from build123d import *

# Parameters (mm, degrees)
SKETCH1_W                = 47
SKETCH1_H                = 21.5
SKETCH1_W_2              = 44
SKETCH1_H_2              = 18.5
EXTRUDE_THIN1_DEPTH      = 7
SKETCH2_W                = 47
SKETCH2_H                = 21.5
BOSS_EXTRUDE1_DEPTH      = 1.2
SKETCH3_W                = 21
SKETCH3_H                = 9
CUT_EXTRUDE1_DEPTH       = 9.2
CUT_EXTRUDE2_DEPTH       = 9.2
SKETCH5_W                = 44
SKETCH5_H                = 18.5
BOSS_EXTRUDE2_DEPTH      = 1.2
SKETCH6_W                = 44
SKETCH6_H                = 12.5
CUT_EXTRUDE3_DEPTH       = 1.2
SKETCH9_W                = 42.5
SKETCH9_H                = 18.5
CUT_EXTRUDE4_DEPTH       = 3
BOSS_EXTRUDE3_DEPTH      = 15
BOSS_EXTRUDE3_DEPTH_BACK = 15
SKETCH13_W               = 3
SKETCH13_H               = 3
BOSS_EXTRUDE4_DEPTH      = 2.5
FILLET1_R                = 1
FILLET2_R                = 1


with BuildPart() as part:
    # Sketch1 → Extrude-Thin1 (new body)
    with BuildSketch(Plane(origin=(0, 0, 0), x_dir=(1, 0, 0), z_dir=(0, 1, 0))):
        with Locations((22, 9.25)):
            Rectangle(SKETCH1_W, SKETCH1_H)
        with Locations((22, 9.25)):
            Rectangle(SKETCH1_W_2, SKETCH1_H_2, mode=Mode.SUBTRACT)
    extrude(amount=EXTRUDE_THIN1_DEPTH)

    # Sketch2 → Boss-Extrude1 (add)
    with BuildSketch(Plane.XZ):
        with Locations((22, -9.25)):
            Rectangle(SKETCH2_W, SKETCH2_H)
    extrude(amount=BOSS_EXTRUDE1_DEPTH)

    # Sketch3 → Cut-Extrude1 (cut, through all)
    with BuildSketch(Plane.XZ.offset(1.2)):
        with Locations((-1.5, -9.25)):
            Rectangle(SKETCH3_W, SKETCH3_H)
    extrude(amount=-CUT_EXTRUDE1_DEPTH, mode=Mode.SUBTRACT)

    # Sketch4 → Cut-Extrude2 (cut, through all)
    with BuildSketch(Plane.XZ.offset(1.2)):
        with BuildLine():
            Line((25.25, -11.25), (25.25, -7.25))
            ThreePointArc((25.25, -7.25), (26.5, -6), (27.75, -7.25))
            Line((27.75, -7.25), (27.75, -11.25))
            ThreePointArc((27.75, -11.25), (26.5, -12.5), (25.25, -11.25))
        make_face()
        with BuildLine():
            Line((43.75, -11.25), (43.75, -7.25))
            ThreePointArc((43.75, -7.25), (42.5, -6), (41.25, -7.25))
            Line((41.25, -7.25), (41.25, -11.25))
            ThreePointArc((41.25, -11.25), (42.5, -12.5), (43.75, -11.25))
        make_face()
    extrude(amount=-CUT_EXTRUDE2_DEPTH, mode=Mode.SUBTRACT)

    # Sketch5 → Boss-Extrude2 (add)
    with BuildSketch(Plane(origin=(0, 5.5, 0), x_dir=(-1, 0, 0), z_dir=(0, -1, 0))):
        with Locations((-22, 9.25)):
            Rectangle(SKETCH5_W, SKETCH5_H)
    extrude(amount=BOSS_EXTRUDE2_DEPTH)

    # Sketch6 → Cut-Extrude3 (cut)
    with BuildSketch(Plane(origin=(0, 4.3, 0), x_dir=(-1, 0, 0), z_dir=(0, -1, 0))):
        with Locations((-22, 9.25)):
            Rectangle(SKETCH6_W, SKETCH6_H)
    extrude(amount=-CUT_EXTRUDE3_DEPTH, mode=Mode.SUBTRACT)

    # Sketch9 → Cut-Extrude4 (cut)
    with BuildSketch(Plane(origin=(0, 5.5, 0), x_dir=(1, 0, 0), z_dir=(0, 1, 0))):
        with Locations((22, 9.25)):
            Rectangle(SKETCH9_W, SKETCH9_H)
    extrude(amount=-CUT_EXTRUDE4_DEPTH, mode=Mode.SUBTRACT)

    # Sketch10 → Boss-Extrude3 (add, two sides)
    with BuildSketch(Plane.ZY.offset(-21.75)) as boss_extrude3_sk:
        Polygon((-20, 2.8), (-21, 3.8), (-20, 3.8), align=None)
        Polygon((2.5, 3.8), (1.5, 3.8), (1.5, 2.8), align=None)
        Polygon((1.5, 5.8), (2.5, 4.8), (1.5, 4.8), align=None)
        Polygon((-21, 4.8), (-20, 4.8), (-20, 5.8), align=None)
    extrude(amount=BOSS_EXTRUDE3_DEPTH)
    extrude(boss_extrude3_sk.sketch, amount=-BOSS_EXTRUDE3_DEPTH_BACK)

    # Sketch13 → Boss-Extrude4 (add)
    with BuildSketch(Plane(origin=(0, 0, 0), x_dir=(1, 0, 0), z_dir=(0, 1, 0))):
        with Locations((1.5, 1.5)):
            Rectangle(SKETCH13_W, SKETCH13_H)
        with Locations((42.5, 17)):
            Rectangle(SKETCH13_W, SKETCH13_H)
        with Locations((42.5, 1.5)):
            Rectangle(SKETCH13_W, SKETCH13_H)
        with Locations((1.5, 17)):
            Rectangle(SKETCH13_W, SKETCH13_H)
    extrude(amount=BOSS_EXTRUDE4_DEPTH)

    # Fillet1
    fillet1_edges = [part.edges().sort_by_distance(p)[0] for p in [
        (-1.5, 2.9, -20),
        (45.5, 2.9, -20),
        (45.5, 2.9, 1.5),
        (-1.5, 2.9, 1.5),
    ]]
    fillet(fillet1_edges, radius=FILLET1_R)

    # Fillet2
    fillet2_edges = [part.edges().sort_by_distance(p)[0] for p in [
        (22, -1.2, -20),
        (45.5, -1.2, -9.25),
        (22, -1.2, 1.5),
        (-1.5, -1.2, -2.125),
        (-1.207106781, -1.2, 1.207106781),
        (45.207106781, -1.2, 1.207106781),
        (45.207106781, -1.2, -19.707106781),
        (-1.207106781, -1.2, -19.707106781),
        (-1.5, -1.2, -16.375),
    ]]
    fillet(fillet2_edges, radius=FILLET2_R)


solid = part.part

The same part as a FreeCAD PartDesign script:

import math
import FreeCAD as App
import Part
import Sketcher
Q = App.Units.Quantity


def edges_at(feature, points):
    """Names of the edges that pass closest to the given points."""
    edges = feature.Shape.Edges
    near = lambda p: min(range(len(edges)), key=lambda i: edges[i].distToShape(Part.Vertex(*p))[0])
    return sorted({f"Edge{near(p) + 1}" for p in points})

doc = App.newDocument("Part")
params = doc.addObject("Spreadsheet::Sheet", "Params")
for row, (alias, value) in enumerate([
    ("sketch1_width", "47 mm"),
    ("sketch1_width2", "44 mm"),
    ("sketch1_height", "21.5 mm"),
    ("sketch1_height2", "18.5 mm"),
    ("pad1_length", "7 mm"),
    ("sketch2_width", "47 mm"),
    ("sketch2_height", "21.5 mm"),
    ("pad2_length", "1.2 mm"),
    ("sketch3_width", "21 mm"),
    ("sketch3_height", "9 mm"),
    ("sketch4_height", "4 mm"),
    ("sketch4_radius", "1.25 mm"),
    ("sketch5_width", "44 mm"),
    ("sketch5_height", "18.5 mm"),
    ("pad3_length", "1.2 mm"),
    ("sketch6_width", "44 mm"),
    ("sketch6_height", "12.5 mm"),
    ("pocket3_length", "1.2 mm"),
    ("sketch7_width", "42.5 mm"),
    ("sketch7_height", "18.5 mm"),
    ("pocket4_length", "3 mm"),
    ("sketch8_width", "1 mm"),
    ("pad4_length", "15 mm"),
    ("pad4_length2", "15 mm"),
    ("sketch9_width", "3 mm"),
    ("pad5_length", "2.5 mm"),
    ("fillet_radius", "1 mm"),
    ("fillet2_radius", "1 mm"),
], start=1):
    params.set(f"A{row}", alias)
    params.set(f"B{row}", "=" + value)
    params.setAlias(f"B{row}", alias)

body = doc.addObject("PartDesign::Body", "Body")

sketch1 = body.newObject("Sketcher::SketchObject", "Sketch")
sketch1.AttachmentSupport = (doc.getObject("XZ_Plane"), [""])
sketch1.MapMode = "FlatFace"
sketch1.addGeometry([
    Part.LineSegment(App.Vector(-2, -20, 0), App.Vector(-2, 2, 0)),
    Part.LineSegment(App.Vector(-2, 2, 0), App.Vector(46, 2, 0)),
    Part.LineSegment(App.Vector(46, 2, 0), App.Vector(46, -20, 0)),
    Part.LineSegment(App.Vector(46, -20, 0), App.Vector(-2, -20, 0)),
    Part.LineSegment(App.Vector(44, 0, 0), App.Vector(0, 0, 0)),
    Part.LineSegment(App.Vector(0, 0, 0), App.Vector(0, -18, 0)),
    Part.LineSegment(App.Vector(0, -18, 0), App.Vector(44, -18, 0)),
    Part.LineSegment(App.Vector(44, -18, 0), App.Vector(44, 0, 0)),
], False)
sketch1.addConstraint([
    Sketcher.Constraint("Coincident", 0, 2, 1, 1),
    Sketcher.Constraint("Coincident", 1, 2, 2, 1),
    Sketcher.Constraint("Coincident", 2, 2, 3, 1),
    Sketcher.Constraint("Coincident", 3, 2, 0, 1),
    Sketcher.Constraint("Coincident", 4, 2, 5, 1),
    Sketcher.Constraint("Coincident", 5, 2, 6, 1),
    Sketcher.Constraint("Coincident", 6, 2, 7, 1),
    Sketcher.Constraint("Coincident", 7, 2, 4, 1),
    Sketcher.Constraint("Vertical", 0),
    Sketcher.Constraint("Horizontal", 1),
    Sketcher.Constraint("Vertical", 2),
    Sketcher.Constraint("Horizontal", 3),
    Sketcher.Constraint("Horizontal", 4),
    Sketcher.Constraint("Vertical", 5),
    Sketcher.Constraint("Horizontal", 6),
    Sketcher.Constraint("Vertical", 7),
    Sketcher.Constraint("Coincident", 4, 2, -1, 1),
    Sketcher.Constraint("DistanceX", 1, 1, 1, 2, Q("47 mm")),
    Sketcher.Constraint("DistanceX", 4, 2, 4, 1, Q("44 mm")),
    Sketcher.Constraint("DistanceY", 0, 1, 0, 2, Q("21.5 mm")),
    Sketcher.Constraint("DistanceY", 5, 2, 5, 1, Q("18.5 mm")),
    Sketcher.Constraint("DistanceY", 2, 2, -1, 1, Q("20 mm")),
    Sketcher.Constraint("DistanceX", 0, 2, -1, 1, Q("1.5 mm")),
])
sketch1.setExpression("Constraints[17]", "Params.sketch1_width")
sketch1.setExpression("Constraints[18]", "Params.sketch1_width2")
sketch1.setExpression("Constraints[19]", "Params.sketch1_height")
sketch1.setExpression("Constraints[20]", "Params.sketch1_height2")
pad1 = body.newObject("PartDesign::Pad", "Pad")
pad1.Profile = sketch1
pad1.setExpression("Length", "Params.pad1_length")
pad1.Reversed = True

sketch2 = body.newObject("Sketcher::SketchObject", "Sketch001")
sketch2.AttachmentSupport = (doc.getObject("XZ_Plane"), [""])
sketch2.MapMode = "FlatFace"
sketch2.addGeometry([
    Part.LineSegment(App.Vector(-2, 2, 0), App.Vector(-2, -20, 0)),
    Part.LineSegment(App.Vector(-2, -20, 0), App.Vector(46, -20, 0)),
    Part.LineSegment(App.Vector(46, -20, 0), App.Vector(46, 2, 0)),
    Part.LineSegment(App.Vector(46, 2, 0), App.Vector(-2, 2, 0)),
], False)
sketch2.addConstraint([
    Sketcher.Constraint("Coincident", 0, 2, 1, 1),
    Sketcher.Constraint("Coincident", 1, 2, 2, 1),
    Sketcher.Constraint("Coincident", 2, 2, 3, 1),
    Sketcher.Constraint("Coincident", 3, 2, 0, 1),
    Sketcher.Constraint("Vertical", 0),
    Sketcher.Constraint("Horizontal", 1),
    Sketcher.Constraint("Vertical", 2),
    Sketcher.Constraint("Horizontal", 3),
    Sketcher.Constraint("DistanceX", 1, 1, 1, 2, Q("47 mm")),
    Sketcher.Constraint("DistanceY", 0, 2, 0, 1, Q("21.5 mm")),
    Sketcher.Constraint("DistanceY", 0, 2, -1, 1, Q("20 mm")),
    Sketcher.Constraint("DistanceX", 0, 2, -1, 1, Q("1.5 mm")),
])
sketch2.setExpression("Constraints[8]", "Params.sketch2_width")
sketch2.setExpression("Constraints[9]", "Params.sketch2_height")
pad2 = body.newObject("PartDesign::Pad", "Pad001")
pad2.Profile = sketch2
pad2.setExpression("Length", "Params.pad2_length")

sketch3 = body.newObject("Sketcher::SketchObject", "Sketch002")
sketch3.AttachmentSupport = (doc.getObject("XZ_Plane"), [""])
sketch3.MapMode = "FlatFace"
sketch3.AttachmentOffset = App.Placement(App.Vector(0, 0, 1.2), App.Rotation())
sketch3.addGeometry([
    Part.LineSegment(App.Vector(-12, -5, 0), App.Vector(-12, -14, 0)),
    Part.LineSegment(App.Vector(-12, -14, 0), App.Vector(9, -14, 0)),
    Part.LineSegment(App.Vector(9, -14, 0), App.Vector(9, -5, 0)),
    Part.LineSegment(App.Vector(9, -5, 0), App.Vector(-12, -5, 0)),
], False)
sketch3.addConstraint([
    Sketcher.Constraint("Coincident", 0, 2, 1, 1),
    Sketcher.Constraint("Coincident", 1, 2, 2, 1),
    Sketcher.Constraint("Coincident", 2, 2, 3, 1),
    Sketcher.Constraint("Coincident", 3, 2, 0, 1),
    Sketcher.Constraint("Vertical", 0),
    Sketcher.Constraint("Horizontal", 1),
    Sketcher.Constraint("Vertical", 2),
    Sketcher.Constraint("Horizontal", 3),
    Sketcher.Constraint("DistanceX", 1, 1, 1, 2, Q("21 mm")),
    Sketcher.Constraint("DistanceY", 0, 2, 0, 1, Q("9 mm")),
    Sketcher.Constraint("DistanceX", 0, 2, -1, 1, Q("12 mm")),
    Sketcher.Constraint("DistanceY", 0, 2, -1, 1, Q("13.75 mm")),
])
sketch3.setExpression("Constraints[8]", "Params.sketch3_width")
sketch3.setExpression("Constraints[9]", "Params.sketch3_height")
pocket1 = body.newObject("PartDesign::Pocket", "Pocket")
pocket1.Profile = sketch3
pocket1.Type = "ThroughAll"

sketch4 = body.newObject("Sketcher::SketchObject", "Sketch003")
sketch4.AttachmentSupport = (doc.getObject("XZ_Plane"), [""])
sketch4.MapMode = "FlatFace"
sketch4.AttachmentOffset = App.Placement(App.Vector(0, 0, 1.2), App.Rotation())
sketch4.addGeometry([
    Part.LineSegment(App.Vector(25.2, -7.2, 0), App.Vector(25.2, -11.2, 0)),
    Part.ArcOfCircle(Part.Circle(App.Vector(26.5, -11.2, 0), App.Vector(0, 0, 1), 1.2), math.radians(180), math.radians(360)),
    Part.LineSegment(App.Vector(27.8, -11.2, 0), App.Vector(27.8, -7.2, 0)),
    Part.ArcOfCircle(Part.Circle(App.Vector(26.5, -7.2, 0), App.Vector(0, 0, 1), 1.2), math.radians(0), math.radians(180)),
    Part.LineSegment(App.Vector(43.8, -11.2, 0), App.Vector(43.8, -7.2, 0)),
    Part.ArcOfCircle(Part.Circle(App.Vector(42.5, -7.2, 0), App.Vector(0, 0, 1), 1.2), math.radians(0), math.radians(180)),
    Part.LineSegment(App.Vector(41.2, -7.2, 0), App.Vector(41.2, -11.2, 0)),
    Part.ArcOfCircle(Part.Circle(App.Vector(42.5, -11.2, 0), App.Vector(0, 0, 1), 1.2), math.radians(180), math.radians(360)),
], False)
sketch4.addConstraint([
    Sketcher.Constraint("Tangent", 0, 2, 1, 1),
    Sketcher.Constraint("Tangent", 1, 2, 2, 1),
    Sketcher.Constraint("Tangent", 2, 2, 3, 1),
    Sketcher.Constraint("Tangent", 3, 2, 0, 1),
    Sketcher.Constraint("Tangent", 4, 2, 5, 1),
    Sketcher.Constraint("Tangent", 5, 2, 6, 1),
    Sketcher.Constraint("Tangent", 6, 2, 7, 1),
    Sketcher.Constraint("Tangent", 7, 2, 4, 1),
    Sketcher.Constraint("Vertical", 0),
    Sketcher.Constraint("Vertical", 2),
    Sketcher.Constraint("Vertical", 4),
    Sketcher.Constraint("Vertical", 6),
    Sketcher.Constraint("Equal", 3, 5),
    Sketcher.Constraint("Horizontal", 3, 3, 5, 3),
    Sketcher.Constraint("Horizontal", 1, 3, 7, 3),
    Sketcher.Constraint("DistanceY", 0, 2, 0, 1, Q("4 mm")),
    Sketcher.Constraint("Radius", 1, Q("1.25 mm")),
    Sketcher.Constraint("DistanceX", 3, 3, 5, 3, Q("16 mm")),
    Sketcher.Constraint("DistanceX", -1, 1, 1, 3, Q("26.5 mm")),
    Sketcher.Constraint("DistanceY", 1, 3, -1, 1, Q("11.25 mm")),
])
sketch4.setExpression("Constraints[15]", "Params.sketch4_height")
sketch4.setExpression("Constraints[16]", "Params.sketch4_radius")
pocket2 = body.newObject("PartDesign::Pocket", "Pocket001")
pocket2.Profile = sketch4
pocket2.Type = "ThroughAll"

sketch5 = body.newObject("Sketcher::SketchObject", "Sketch004")
sketch5.AttachmentSupport = (doc.getObject("XZ_Plane"), [""])
sketch5.MapMode = "FlatFace"
sketch5.AttachmentOffset = App.Placement(App.Vector(0, 0, -5.5), App.Rotation())
sketch5.addGeometry([
    Part.LineSegment(App.Vector(44, -18, 0), App.Vector(44, 0, 0)),
    Part.LineSegment(App.Vector(44, 0, 0), App.Vector(0, 0, 0)),
    Part.LineSegment(App.Vector(0, 0, 0), App.Vector(0, -18, 0)),
    Part.LineSegment(App.Vector(0, -18, 0), App.Vector(44, -18, 0)),
], False)
sketch5.addConstraint([
    Sketcher.Constraint("Coincident", 0, 2, 1, 1),
    Sketcher.Constraint("Coincident", 1, 2, 2, 1),
    Sketcher.Constraint("Coincident", 2, 2, 3, 1),
    Sketcher.Constraint("Coincident", 3, 2, 0, 1),
    Sketcher.Constraint("Vertical", 0),
    Sketcher.Constraint("Horizontal", 1),
    Sketcher.Constraint("Vertical", 2),
    Sketcher.Constraint("Horizontal", 3),
    Sketcher.Constraint("Coincident", 1, 2, -1, 1),
    Sketcher.Constraint("DistanceX", 1, 2, 1, 1, Q("44 mm")),
    Sketcher.Constraint("DistanceY", 0, 1, 0, 2, Q("18.5 mm")),
])
sketch5.setExpression("Constraints[9]", "Params.sketch5_width")
sketch5.setExpression("Constraints[10]", "Params.sketch5_height")
pad3 = body.newObject("PartDesign::Pad", "Pad002")
pad3.Profile = sketch5
pad3.setExpression("Length", "Params.pad3_length")

sketch6 = body.newObject("Sketcher::SketchObject", "Sketch005")
sketch6.AttachmentSupport = (doc.getObject("XZ_Plane"), [""])
sketch6.MapMode = "FlatFace"
sketch6.AttachmentOffset = App.Placement(App.Vector(0, 0, -4.3), App.Rotation())
sketch6.addGeometry([
    Part.LineSegment(App.Vector(44, -16, 0), App.Vector(44, -3, 0)),
    Part.LineSegment(App.Vector(44, -3, 0), App.Vector(0, -3, 0)),
    Part.LineSegment(App.Vector(0, -3, 0), App.Vector(0, -16, 0)),
    Part.LineSegment(App.Vector(0, -16, 0), App.Vector(44, -16, 0)),
], False)
sketch6.addConstraint([
    Sketcher.Constraint("Coincident", 0, 2, 1, 1),
    Sketcher.Constraint("Coincident", 1, 2, 2, 1),
    Sketcher.Constraint("Coincident", 2, 2, 3, 1),
    Sketcher.Constraint("Coincident", 3, 2, 0, 1),
    Sketcher.Constraint("Vertical", 0),
    Sketcher.Constraint("Horizontal", 1),
    Sketcher.Constraint("Vertical", 2),
    Sketcher.Constraint("Horizontal", 3),
    Sketcher.Constraint("PointOnObject", 1, 2, -2),
    Sketcher.Constraint("DistanceX", 1, 2, 1, 1, Q("44 mm")),
    Sketcher.Constraint("DistanceY", 0, 1, 0, 2, Q("12.5 mm")),
    Sketcher.Constraint("DistanceY", 0, 2, -1, 1, Q("3 mm")),
])
sketch6.setExpression("Constraints[9]", "Params.sketch6_width")
sketch6.setExpression("Constraints[10]", "Params.sketch6_height")
pocket3 = body.newObject("PartDesign::Pocket", "Pocket002")
pocket3.Profile = sketch6
pocket3.setExpression("Length", "Params.pocket3_length")

sketch7 = body.newObject("Sketcher::SketchObject", "Sketch006")
sketch7.AttachmentSupport = (doc.getObject("XZ_Plane"), [""])
sketch7.MapMode = "FlatFace"
sketch7.AttachmentOffset = App.Placement(App.Vector(0, 0, -5.5), App.Rotation())
sketch7.addGeometry([
    Part.LineSegment(App.Vector(1, -18, 0), App.Vector(1, 0, 0)),
    Part.LineSegment(App.Vector(1, 0, 0), App.Vector(43, 0, 0)),
    Part.LineSegment(App.Vector(43, 0, 0), App.Vector(43, -18, 0)),
    Part.LineSegment(App.Vector(43, -18, 0), App.Vector(1, -18, 0)),
], False)
sketch7.addConstraint([
    Sketcher.Constraint("Coincident", 0, 2, 1, 1),
    Sketcher.Constraint("Coincident", 1, 2, 2, 1),
    Sketcher.Constraint("Coincident", 2, 2, 3, 1),
    Sketcher.Constraint("Coincident", 3, 2, 0, 1),
    Sketcher.Constraint("Vertical", 0),
    Sketcher.Constraint("Horizontal", 1),
    Sketcher.Constraint("Vertical", 2),
    Sketcher.Constraint("Horizontal", 3),
    Sketcher.Constraint("PointOnObject", 0, 2, -1),
    Sketcher.Constraint("DistanceX", 1, 1, 1, 2, Q("42.5 mm")),
    Sketcher.Constraint("DistanceY", 0, 1, 0, 2, Q("18.5 mm")),
    Sketcher.Constraint("DistanceX", -1, 1, 0, 2, Q("0.75 mm")),
])
sketch7.setExpression("Constraints[9]", "Params.sketch7_width")
sketch7.setExpression("Constraints[10]", "Params.sketch7_height")
pocket4 = body.newObject("PartDesign::Pocket", "Pocket003")
pocket4.Profile = sketch7
pocket4.setExpression("Length", "Params.pocket4_length")
pocket4.Reversed = True

sketch8 = body.newObject("Sketcher::SketchObject", "Sketch007")
sketch8.AttachmentSupport = (doc.getObject("YZ_Plane"), [""])
sketch8.MapMode = "FlatFace"
sketch8.AttachmentOffset = App.Placement(App.Vector(0, 0, 21.75), App.Rotation())
sketch8.addGeometry([
    Part.LineSegment(App.Vector(3.8, -21, 0), App.Vector(2.8, -20, 0)),
    Part.LineSegment(App.Vector(2.8, -20, 0), App.Vector(3.8, -20, 0)),
    Part.LineSegment(App.Vector(3.8, -20, 0), App.Vector(3.8, -21, 0)),
    Part.LineSegment(App.Vector(3.8, 2.5, 0), App.Vector(3.8, 1.5, 0)),
    Part.LineSegment(App.Vector(3.8, 1.5, 0), App.Vector(2.8, 1.5, 0)),
    Part.LineSegment(App.Vector(2.8, 1.5, 0), App.Vector(3.8, 2.5, 0)),
    Part.LineSegment(App.Vector(4.8, 2.5, 0), App.Vector(5.8, 1.5, 0)),
    Part.LineSegment(App.Vector(5.8, 1.5, 0), App.Vector(4.8, 1.5, 0)),
    Part.LineSegment(App.Vector(4.8, 1.5, 0), App.Vector(4.8, 2.5, 0)),
    Part.LineSegment(App.Vector(4.8, -21, 0), App.Vector(4.8, -20, 0)),
    Part.LineSegment(App.Vector(4.8, -20, 0), App.Vector(5.8, -20, 0)),
    Part.LineSegment(App.Vector(5.8, -20, 0), App.Vector(4.8, -21, 0)),
], False)
sketch8.addConstraint([
    Sketcher.Constraint("Coincident", 0, 2, 1, 1),
    Sketcher.Constraint("Coincident", 1, 2, 2, 1),
    Sketcher.Constraint("Coincident", 2, 2, 0, 1),
    Sketcher.Constraint("Coincident", 3, 2, 4, 1),
    Sketcher.Constraint("Coincident", 4, 2, 5, 1),
    Sketcher.Constraint("Coincident", 5, 2, 3, 1),
    Sketcher.Constraint("Coincident", 6, 2, 7, 1),
    Sketcher.Constraint("Coincident", 7, 2, 8, 1),
    Sketcher.Constraint("Coincident", 8, 2, 6, 1),
    Sketcher.Constraint("Coincident", 9, 2, 10, 1),
    Sketcher.Constraint("Coincident", 10, 2, 11, 1),
    Sketcher.Constraint("Coincident", 11, 2, 9, 1),
    Sketcher.Constraint("Horizontal", 1),
    Sketcher.Constraint("Vertical", 2),
    Sketcher.Constraint("Vertical", 3),
    Sketcher.Constraint("Horizontal", 4),
    Sketcher.Constraint("Horizontal", 7),
    Sketcher.Constraint("Vertical", 8),
    Sketcher.Constraint("Vertical", 9),
    Sketcher.Constraint("Horizontal", 10),
    Sketcher.Constraint("Perpendicular", 0, 5),
    Sketcher.Constraint("Perpendicular", 5, 6),
    Sketcher.Constraint("Perpendicular", 6, 11),
    Sketcher.Constraint("Horizontal", 4, 2, 6, 2),
    Sketcher.Constraint("Horizontal", 5, 2, 8, 2),
    Sketcher.Constraint("Horizontal", 1, 2, 9, 2),
    Sketcher.Constraint("Horizontal", 2, 2, 11, 2),
    Sketcher.Constraint("Vertical", 2, 2, 3, 2),
    Sketcher.Constraint("Vertical", 0, 2, 4, 2),
    Sketcher.Constraint("Vertical", 8, 2, 9, 2),
    Sketcher.Constraint("Vertical", 6, 2, 10, 2),
    Sketcher.Constraint("DistanceX", 1, 1, 1, 2, Q("1 mm")),
    Sketcher.Constraint("DistanceY", 0, 2, -1, 1, Q("20 mm")),
    Sketcher.Constraint("DistanceX", 3, 2, 6, 2, Q("2 mm")),
    Sketcher.Constraint("DistanceX", -1, 1, 0, 2, Q("2.8 mm")),
    Sketcher.Constraint("DistanceY", -1, 1, 3, 2, Q("1.5 mm")),
])
sketch8.setExpression("Constraints[31]", "Params.sketch8_width")
pad4 = body.newObject("PartDesign::Pad", "Pad003")
pad4.Profile = sketch8
pad4.Type = "TwoLengths"
pad4.setExpression("Length", "Params.pad4_length")
pad4.setExpression("Length2", "Params.pad4_length2")
pad4.Reversed = True

sketch9 = body.newObject("Sketcher::SketchObject", "Sketch008")
sketch9.AttachmentSupport = (doc.getObject("XZ_Plane"), [""])
sketch9.MapMode = "FlatFace"
sketch9.addGeometry([
    Part.LineSegment(App.Vector(0, -3, 0), App.Vector(0, 0, 0)),
    Part.LineSegment(App.Vector(0, 0, 0), App.Vector(3, 0, 0)),
    Part.LineSegment(App.Vector(3, 0, 0), App.Vector(3, -3, 0)),
    Part.LineSegment(App.Vector(3, -3, 0), App.Vector(0, -3, 0)),
    Part.LineSegment(App.Vector(41, -18.5, 0), App.Vector(41, -15.5, 0)),
    Part.LineSegment(App.Vector(41, -15.5, 0), App.Vector(44, -15.5, 0)),
    Part.LineSegment(App.Vector(44, -15.5, 0), App.Vector(44, -18.5, 0)),
    Part.LineSegment(App.Vector(44, -18.5, 0), App.Vector(41, -18.5, 0)),
    Part.LineSegment(App.Vector(41, -3, 0), App.Vector(41, 0, 0)),
    Part.LineSegment(App.Vector(41, 0, 0), App.Vector(44, 0, 0)),
    Part.LineSegment(App.Vector(44, 0, 0), App.Vector(44, -3, 0)),
    Part.LineSegment(App.Vector(44, -3, 0), App.Vector(41, -3, 0)),
    Part.LineSegment(App.Vector(0, -18.5, 0), App.Vector(0, -15.5, 0)),
    Part.LineSegment(App.Vector(0, -15.5, 0), App.Vector(3, -15.5, 0)),
    Part.LineSegment(App.Vector(3, -15.5, 0), App.Vector(3, -18.5, 0)),
    Part.LineSegment(App.Vector(3, -18.5, 0), App.Vector(0, -18.5, 0)),
], False)
sketch9.addConstraint([
    Sketcher.Constraint("Coincident", 0, 2, 1, 1),
    Sketcher.Constraint("Coincident", 1, 2, 2, 1),
    Sketcher.Constraint("Coincident", 2, 2, 3, 1),
    Sketcher.Constraint("Coincident", 3, 2, 0, 1),
    Sketcher.Constraint("Coincident", 4, 2, 5, 1),
    Sketcher.Constraint("Coincident", 5, 2, 6, 1),
    Sketcher.Constraint("Coincident", 6, 2, 7, 1),
    Sketcher.Constraint("Coincident", 7, 2, 4, 1),
    Sketcher.Constraint("Coincident", 8, 2, 9, 1),
    Sketcher.Constraint("Coincident", 9, 2, 10, 1),
    Sketcher.Constraint("Coincident", 10, 2, 11, 1),
    Sketcher.Constraint("Coincident", 11, 2, 8, 1),
    Sketcher.Constraint("Coincident", 12, 2, 13, 1),
    Sketcher.Constraint("Coincident", 13, 2, 14, 1),
    Sketcher.Constraint("Coincident", 14, 2, 15, 1),
    Sketcher.Constraint("Coincident", 15, 2, 12, 1),
    Sketcher.Constraint("Vertical", 0),
    Sketcher.Constraint("Horizontal", 1),
    Sketcher.Constraint("Vertical", 2),
    Sketcher.Constraint("Horizontal", 3),
    Sketcher.Constraint("Vertical", 4),
    Sketcher.Constraint("Horizontal", 5),
    Sketcher.Constraint("Vertical", 6),
    Sketcher.Constraint("Horizontal", 7),
    Sketcher.Constraint("Vertical", 8),
    Sketcher.Constraint("Horizontal", 9),
    Sketcher.Constraint("Vertical", 10),
    Sketcher.Constraint("Horizontal", 11),
    Sketcher.Constraint("Vertical", 12),
    Sketcher.Constraint("Horizontal", 13),
    Sketcher.Constraint("Vertical", 14),
    Sketcher.Constraint("Horizontal", 15),
    Sketcher.Constraint("Coincident", 0, 2, -1, 1),
    Sketcher.Constraint("PointOnObject", 8, 2, -1),
    Sketcher.Constraint("PointOnObject", 12, 2, -2),
    Sketcher.Constraint("Horizontal", 3, 2, 10, 2),
    Sketcher.Constraint("Horizontal", 5, 2, 12, 2),
    Sketcher.Constraint("Horizontal", 7, 2, 14, 2),
    Sketcher.Constraint("Vertical", 7, 2, 8, 2),
    Sketcher.Constraint("Vertical", 6, 2, 9, 2),
    Sketcher.Constraint("Vertical", 2, 2, 13, 2),
    Sketcher.Constraint("Equal", 3, 5),
    Sketcher.Constraint("Equal", 15, 0),
    Sketcher.Constraint("Equal", 2, 4),
    Sketcher.Constraint("DistanceX", 1, 1, 1, 2, Q("3 mm")),
    Sketcher.Constraint("DistanceX", -1, 1, 4, 2, Q("41 mm")),
    Sketcher.Constraint("DistanceY", 4, 2, -1, 1, Q("15.5 mm")),
])
sketch9.setExpression("Constraints[44]", "Params.sketch9_width")
pad5 = body.newObject("PartDesign::Pad", "Pad004")
pad5.Profile = sketch9
pad5.setExpression("Length", "Params.pad5_length")
pad5.Reversed = True
doc.recompute()

fillet = body.newObject("PartDesign::Fillet", "Fillet")
fillet.Base = (pad5, edges_at(pad5, [
    (-1.5, 2.9, -20),
    (45.5, 2.9, -20),
    (45.5, 2.9, 1.5),
    (-1.5, 2.9, 1.5),
]))
fillet.setExpression("Radius", "Params.fillet_radius")
doc.recompute()

fillet2 = body.newObject("PartDesign::Fillet", "Fillet001")
fillet2.Base = (fillet, edges_at(fillet, [
    (22, -1.2, -20),
    (45.5, -1.2, -9.25),
    (22, -1.2, 1.5),
    (-1.5, -1.2, -2.125),
    (-1.207, -1.2, 1.207),
    (45.207, -1.2, 1.207),
    (45.207, -1.2, -19.707),
    (-1.207, -1.2, -19.707),
    (-1.5, -1.2, -16.375),
]))
fillet2.setExpression("Radius", "Params.fillet2_radius")

doc.recompute()
